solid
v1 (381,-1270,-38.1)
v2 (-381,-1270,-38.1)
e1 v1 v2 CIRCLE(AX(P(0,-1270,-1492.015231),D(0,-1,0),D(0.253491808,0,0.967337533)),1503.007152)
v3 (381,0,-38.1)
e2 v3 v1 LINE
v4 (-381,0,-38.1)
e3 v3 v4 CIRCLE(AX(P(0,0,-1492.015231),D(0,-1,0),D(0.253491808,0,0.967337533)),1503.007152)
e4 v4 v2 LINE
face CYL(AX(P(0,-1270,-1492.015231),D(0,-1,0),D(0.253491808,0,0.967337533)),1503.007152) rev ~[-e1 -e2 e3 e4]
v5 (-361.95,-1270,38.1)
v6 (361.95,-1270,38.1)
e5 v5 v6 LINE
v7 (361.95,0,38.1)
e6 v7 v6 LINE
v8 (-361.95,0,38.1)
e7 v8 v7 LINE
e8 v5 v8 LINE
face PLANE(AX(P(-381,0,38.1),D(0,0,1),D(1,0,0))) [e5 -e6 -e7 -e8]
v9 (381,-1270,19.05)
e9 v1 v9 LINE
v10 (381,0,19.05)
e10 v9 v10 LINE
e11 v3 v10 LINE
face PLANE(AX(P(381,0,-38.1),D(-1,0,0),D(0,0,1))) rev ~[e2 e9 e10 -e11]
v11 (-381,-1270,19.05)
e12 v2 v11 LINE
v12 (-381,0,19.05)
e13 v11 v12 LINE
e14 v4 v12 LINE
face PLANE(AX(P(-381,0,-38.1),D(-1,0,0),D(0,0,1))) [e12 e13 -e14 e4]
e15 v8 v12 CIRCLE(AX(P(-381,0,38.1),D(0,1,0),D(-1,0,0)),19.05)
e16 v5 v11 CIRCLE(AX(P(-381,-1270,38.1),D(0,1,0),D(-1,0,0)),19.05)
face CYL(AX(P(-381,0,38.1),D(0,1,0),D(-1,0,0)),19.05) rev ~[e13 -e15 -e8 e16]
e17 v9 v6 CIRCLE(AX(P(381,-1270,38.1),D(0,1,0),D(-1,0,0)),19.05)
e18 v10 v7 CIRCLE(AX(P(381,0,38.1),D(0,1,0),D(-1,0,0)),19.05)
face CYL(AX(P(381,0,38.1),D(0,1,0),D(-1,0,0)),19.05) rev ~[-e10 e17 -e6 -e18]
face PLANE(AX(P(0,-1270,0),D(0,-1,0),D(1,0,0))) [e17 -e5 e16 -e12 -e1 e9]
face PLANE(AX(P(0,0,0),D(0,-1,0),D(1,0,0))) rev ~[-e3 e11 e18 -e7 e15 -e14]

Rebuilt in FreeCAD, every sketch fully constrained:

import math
import FreeCAD as App
import Part
import Sketcher
from FreeCAD import Vector
Q = App.Units.Quantity

doc = App.newDocument("Part")
params = doc.addObject("Spreadsheet::Sheet", "Params")
for row, (alias, value) in enumerate([
    ("sketch1_width", "30 in"),
    ("sketch1_height", "3 in"),
    ("pad1_length", "50 in"),
    ("sketch2_diameter", "1 in"),
    ("sketch2_diameter2", "3 in"),
    ("pocket1_length", "1 in"),
    ("sketch3_width", "30 in"),
    ("sketch4_diameter", "1.5 in"),
], start=1):
    params.set(f"A{row}", alias)
    params.set(f"B{row}", "=" + value)
    params.setAlias(f"B{row}", alias)

body = doc.addObject("PartDesign::Body", "Body")

sketch1 = doc.addObject("Sketcher::SketchObject", "Sketch")
body.addObject(sketch1)
sketch1.AttachmentSupport = (doc.XZ_Plane, [""])
sketch1.MapMode = "FlatFace"
sketch1.addGeometry([
    Part.LineSegment(Vector(-381, 38, 0), Vector(-381, -38, 0)),
    Part.LineSegment(Vector(-381, -38, 0), Vector(381, -38, 0)),
    Part.LineSegment(Vector(381, -38, 0), Vector(381, 38, 0)),
    Part.LineSegment(Vector(381, 38, 0), Vector(-381, 38, 0)),
], False)
sketch1.addConstraint([
    Sketcher.Constraint("Coincident", 0, 2, 1, 1),
    Sketcher.Constraint("Coincident", 1, 2, 2, 1),
    Sketcher.Constraint("Coincident", 2, 2, 3, 1),
    Sketcher.Constraint("Coincident", 3, 2, 0, 1),
    Sketcher.Constraint("Vertical", 0),
    Sketcher.Constraint("Horizontal", 1),
    Sketcher.Constraint("Vertical", 2),
    Sketcher.Constraint("Horizontal", 3),
    Sketcher.Constraint("Symmetric", 0, 2, 2, 2, -1, 1),
    Sketcher.Constraint("DistanceX", 1, 1, 1, 2, Q("30 in")),
    Sketcher.Constraint("DistanceY", 0, 2, 0, 1, Q("3 in")),
])
sketch1.setExpression("Constraints[9]", "Params.sketch1_width")
sketch1.setExpression("Constraints[10]", "Params.sketch1_height")
pad1 = doc.addObject("PartDesign::Pad", "Pad")
body.addObject(pad1)
pad1.Profile = sketch1
pad1.setExpression("Length", "Params.pad1_length")

sketch2 = doc.addObject("Sketcher::SketchObject", "Sketch001")
body.addObject(sketch2)
sketch2.AttachmentSupport = (doc.XY_Plane, [""])
sketch2.MapMode = "FlatFace"
sketch2.AttachmentOffset = App.Placement(Vector(0, 0, -1.5 * 25.4), App.Rotation())
sketch2.addGeometry([
    Part.Circle(Vector(0, -1232, 0), Vector(0, 0, 1), 13),
    Part.Circle(Vector(0, -38, 0), Vector(0, 0, 1), 13),
    Part.Circle(Vector(0, -876, 0), Vector(0, 0, 1), 38),
    Part.Circle(Vector(0, -394, 0), Vector(0, 0, 1), 38),
], False)
sketch2.addConstraint([
    Sketcher.Constraint("Equal", 0, 1),
    Sketcher.Constraint("Equal", 2, 3),
    Sketcher.Constraint("PointOnObject", 0, 3, -2),
    Sketcher.Constraint("PointOnObject", 1, 3, -2),
    Sketcher.Constraint("PointOnObject", 2, 3, -2),
    Sketcher.Constraint("PointOnObject", 3, 3, -2),
    Sketcher.Constraint("Diameter", 0, Q("1 in")),
    Sketcher.Constraint("Diameter", 2, Q("3 in")),
    Sketcher.Constraint("DistanceY", 0, 3, 1, 3, Q("47 in")),
    Sketcher.Constraint("DistanceY", 0, 3, 2, 3, Q("14 in")),
    Sketcher.Constraint("DistanceY", 3, 3, 1, 3, Q("14 in")),
    Sketcher.Constraint("DistanceY", 0, 3, -1, 1, Q("48.5 in")),
])
sketch2.setExpression("Constraints[6]", "Params.sketch2_diameter")
sketch2.setExpression("Constraints[7]", "Params.sketch2_diameter2")
pocket1 = doc.addObject("PartDesign::Pocket", "Pocket")
body.addObject(pocket1)
pocket1.Profile = sketch2
pocket1.setExpression("Length", "Params.pocket1_length")
pocket1.Reversed = True

sketch3 = doc.addObject("Sketcher::SketchObject", "Sketch002")
body.addObject(sketch3)
sketch3.AttachmentSupport = (doc.XZ_Plane, [""])
sketch3.MapMode = "FlatFace"
sketch3.AttachmentOffset = App.Placement(Vector(0, 0, 50 * 25.4), App.Rotation())
sketch3.addGeometry([
    Part.LineSegment(Vector(-381, -38, 0), Vector(381, -38, 0)),
    Part.ArcOfCircle(Part.Circle(Vector(0, -1492, 0), Vector(0, 0, 1), 1503), math.radians(75), math.radians(105)),
], False)
sketch3.addConstraint([
    Sketcher.Constraint("Coincident", 0, 1, 1, 2),
    Sketcher.Constraint("Coincident", 1, 1, 0, 2),
    Sketcher.Constraint("Horizontal", 0),
    Sketcher.Constraint("PointOnObject", 1, 3, -2),
    Sketcher.Constraint("DistanceX", 0, 1, 0, 2, Q("30 in")),
    Sketcher.Constraint("DistanceY", 0, 1, -1, 1, Q("1.5 in")),
    Sketcher.Constraint("Radius", 1, Q("1503.007152 mm")),
])
sketch3.setExpression("Constraints[4]", "Params.sketch3_width")
pocket2 = doc.addObject("PartDesign::Pocket", "Pocket001")
body.addObject(pocket2)
pocket2.Profile = sketch3
pocket2.Type = "ThroughAll"

sketch4 = doc.addObject("Sketcher::SketchObject", "Sketch003")
body.addObject(sketch4)
sketch4.AttachmentSupport = (doc.XZ_Plane, [""])
sketch4.MapMode = "FlatFace"
sketch4.addGeometry([
    Part.Circle(Vector(381, 38, 0), Vector(0, 0, 1), 19),
    Part.Circle(Vector(-381, 38, 0), Vector(0, 0, 1), 19),
], False)
sketch4.addConstraint([
    Sketcher.Constraint("Equal", 0, 1),
    Sketcher.Constraint("Symmetric", 0, 3, 1, 3, -2),
    Sketcher.Constraint("Diameter", 0, Q("1.5 in")),
    Sketcher.Constraint("DistanceX", -1, 1, 0, 3, Q("15 in")),
    Sketcher.Constraint("DistanceY", -1, 1, 0, 3, Q("1.5 in")),
])
sketch4.setExpression("Constraints[2]", "Params.sketch4_diameter")
pocket3 = doc.addObject("PartDesign::Pocket", "Pocket002")
body.addObject(pocket3)
pocket3.Profile = sketch4
pocket3.Type = "ThroughAll"
pocket3.Reversed = True

doc.recompute()
